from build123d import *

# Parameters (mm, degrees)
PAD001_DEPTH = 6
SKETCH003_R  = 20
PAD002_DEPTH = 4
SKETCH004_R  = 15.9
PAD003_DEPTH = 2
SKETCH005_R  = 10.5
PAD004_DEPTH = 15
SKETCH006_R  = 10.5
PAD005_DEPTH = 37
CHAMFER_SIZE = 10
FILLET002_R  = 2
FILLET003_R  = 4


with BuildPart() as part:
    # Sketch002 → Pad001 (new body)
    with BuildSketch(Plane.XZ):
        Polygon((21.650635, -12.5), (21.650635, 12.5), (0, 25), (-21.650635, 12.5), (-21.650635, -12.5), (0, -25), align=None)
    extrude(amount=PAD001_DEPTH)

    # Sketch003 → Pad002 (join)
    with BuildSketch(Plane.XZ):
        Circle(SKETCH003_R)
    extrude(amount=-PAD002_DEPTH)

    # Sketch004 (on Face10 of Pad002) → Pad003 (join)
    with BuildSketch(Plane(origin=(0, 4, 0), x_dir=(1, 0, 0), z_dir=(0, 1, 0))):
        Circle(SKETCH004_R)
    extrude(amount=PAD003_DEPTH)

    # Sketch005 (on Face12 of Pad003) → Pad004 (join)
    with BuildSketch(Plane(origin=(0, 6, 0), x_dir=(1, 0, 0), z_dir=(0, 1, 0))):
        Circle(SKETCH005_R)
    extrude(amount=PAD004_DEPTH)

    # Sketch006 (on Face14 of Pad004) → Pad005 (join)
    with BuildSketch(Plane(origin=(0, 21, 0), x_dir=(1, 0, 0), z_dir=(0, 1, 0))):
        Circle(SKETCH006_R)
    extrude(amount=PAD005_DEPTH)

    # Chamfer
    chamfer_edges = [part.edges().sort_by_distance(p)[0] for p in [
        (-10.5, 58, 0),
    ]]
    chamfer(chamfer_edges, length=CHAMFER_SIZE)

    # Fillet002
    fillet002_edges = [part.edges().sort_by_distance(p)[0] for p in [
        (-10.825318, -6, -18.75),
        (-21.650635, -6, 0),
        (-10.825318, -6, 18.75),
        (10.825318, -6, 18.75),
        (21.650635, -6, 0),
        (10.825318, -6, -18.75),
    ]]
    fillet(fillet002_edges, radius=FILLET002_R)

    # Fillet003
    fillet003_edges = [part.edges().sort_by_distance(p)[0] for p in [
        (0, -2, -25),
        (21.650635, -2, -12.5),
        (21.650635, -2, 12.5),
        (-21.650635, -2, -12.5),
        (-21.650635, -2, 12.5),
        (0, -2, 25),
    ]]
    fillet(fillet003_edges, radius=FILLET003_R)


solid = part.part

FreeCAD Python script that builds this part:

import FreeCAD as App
import Part
import Sketcher
Q = App.Units.Quantity


def edges_at(feature, points):
    """Names of the edges that pass closest to the given points."""
    edges = feature.Shape.Edges
    near = lambda p: min(range(len(edges)), key=lambda i: edges[i].distToShape(Part.Vertex(*p))[0])
    return sorted({f"Edge{near(p) + 1}" for p in points})


def add_polygon(sketch, points):
    """Adds a closed chain of lines whose ends are joined by coincident constraints."""
    first, n = sketch.GeometryCount, len(points)
    for a, b in zip(points, points[1:] + points[:1]):
        sketch.addGeometry(Part.LineSegment(App.Vector(*a, 0), App.Vector(*b, 0)), False)
    for i in range(n):
        sketch.addConstraint(Sketcher.Constraint("Coincident", first + i, 2, first + (i + 1) % n, 1))

doc = App.newDocument("Part")
body = doc.addObject("PartDesign::Body", "Body")

# Sketch on XZ plane
sketch1 = body.newObject("Sketcher::SketchObject", "Sketch")
sketch1.AttachmentSupport = (doc.getObject("XZ_Plane"), [""])
sketch1.MapMode = "FlatFace"
add_polygon(sketch1, [(21.650635, -12.5), (21.650635, 12.5), (0, 25), (-21.650635, 12.5), (-21.650635, -12.5), (0, -25)])  # lines 0-5
sketch1.addConstraint([
    Sketcher.Constraint("Vertical", 0),
    Sketcher.Constraint("Vertical", 3),
    Sketcher.Constraint("Symmetric", 0, 2, 3, 2, -1, 1),
    Sketcher.Constraint("Symmetric", 1, 2, 4, 2, -1, 1),
    Sketcher.Constraint("PointOnObject", 1, 2, -2),
    Sketcher.Constraint("Parallel", 2, 5),
    Sketcher.Constraint("Horizontal", 0, 2, 2, 2),
    Sketcher.Constraint("DistanceY", 0, 1, 0, 2, Q("25 mm")),
    Sketcher.Constraint("Angle", 1, Q("150 deg")),
    Sketcher.Constraint("Distance", 1, Q("25 mm")),
])
pad1 = body.newObject("PartDesign::Pad", "Pad")
pad1.Profile = sketch1
pad1.Length = 6

# Sketch on XZ plane
sketch2 = body.newObject("Sketcher::SketchObject", "Sketch001")
sketch2.AttachmentSupport = (doc.getObject("XZ_Plane"), [""])
sketch2.MapMode = "FlatFace"
sketch2.addGeometry(Part.Circle(App.Vector(0, 0, 0), App.Vector(0, 0, 1), 20), False)
sketch2.addConstraint([
    Sketcher.Constraint("Coincident", 0, 3, -1, 1),
    Sketcher.Constraint("Diameter", 0, Q("40 mm")),
])
pad2 = body.newObject("PartDesign::Pad", "Pad001")
pad2.Profile = sketch2
pad2.Length = 4
pad2.Reversed = True

# Sketch on XZ plane
sketch3 = body.newObject("Sketcher::SketchObject", "Sketch002")
sketch3.AttachmentSupport = (doc.getObject("XZ_Plane"), [""])
sketch3.MapMode = "FlatFace"
sketch3.AttachmentOffset = App.Placement(App.Vector(0, 0, -4), App.Rotation())
sketch3.addGeometry(Part.Circle(App.Vector(0, 0, 0), App.Vector(0, 0, 1), 15.9), False)
sketch3.addConstraint([
    Sketcher.Constraint("Coincident", 0, 3, -1, 1),
    Sketcher.Constraint("Diameter", 0, Q("31.8 mm")),
])
pad3 = body.newObject("PartDesign::Pad", "Pad002")
pad3.Profile = sketch3
pad3.Length = 2
pad3.Reversed = True

# Sketch on XZ plane
sketch4 = body.newObject("Sketcher::SketchObject", "Sketch003")
sketch4.AttachmentSupport = (doc.getObject("XZ_Plane"), [""])
sketch4.MapMode = "FlatFace"
sketch4.AttachmentOffset = App.Placement(App.Vector(0, 0, -6), App.Rotation())
sketch4.addGeometry(Part.Circle(App.Vector(0, 0, 0), App.Vector(0, 0, 1), 10.5), False)
sketch4.addConstraint([
    Sketcher.Constraint("Coincident", 0, 3, -1, 1),
    Sketcher.Constraint("Diameter", 0, Q("21 mm")),
])
pad4 = body.newObject("PartDesign::Pad", "Pad003")
pad4.Profile = sketch4
pad4.Length = 15
pad4.Reversed = True

# Sketch on XZ plane
sketch5 = body.newObject("Sketcher::SketchObject", "Sketch004")
sketch5.AttachmentSupport = (doc.getObject("XZ_Plane"), [""])
sketch5.MapMode = "FlatFace"
sketch5.AttachmentOffset = App.Placement(App.Vector(0, 0, -21), App.Rotation())
sketch5.addGeometry(Part.Circle(App.Vector(0, 0, 0), App.Vector(0, 0, 1), 10.5), False)
sketch5.addConstraint([
    Sketcher.Constraint("Coincident", 0, 3, -1, 1),
    Sketcher.Constraint("Diameter", 0, Q("21 mm")),
])
pad5 = body.newObject("PartDesign::Pad", "Pad004")
pad5.Profile = sketch5
pad5.Length = 37
pad5.Reversed = True
doc.recompute()

chamfer = body.newObject("PartDesign::Chamfer", "Chamfer")
chamfer.Base = (pad5, edges_at(pad5, [(-10.5, 58, 0)]))
chamfer.Size = 10
doc.recompute()

fillet = body.newObject("PartDesign::Fillet", "Fillet")
fillet.Base = (chamfer, edges_at(chamfer, [
    (-10.825, -6, -18.75),
    (-21.651, -6, 0),
    (-10.825, -6, 18.75),
    (10.825, -6, 18.75),
    (21.651, -6, 0),
    (10.825, -6, -18.75),
]))
fillet.Radius = 2
doc.recompute()

fillet2 = body.newObject("PartDesign::Fillet", "Fillet001")
fillet2.Base = (fillet, edges_at(fillet, [
    (0, -2, -25),
    (21.651, -2, -12.5),
    (21.651, -2, 12.5),
    (-21.651, -2, -12.5),
    (-21.651, -2, 12.5),
    (0, -2, 25),
]))
fillet2.Radius = 4

doc.recompute()
